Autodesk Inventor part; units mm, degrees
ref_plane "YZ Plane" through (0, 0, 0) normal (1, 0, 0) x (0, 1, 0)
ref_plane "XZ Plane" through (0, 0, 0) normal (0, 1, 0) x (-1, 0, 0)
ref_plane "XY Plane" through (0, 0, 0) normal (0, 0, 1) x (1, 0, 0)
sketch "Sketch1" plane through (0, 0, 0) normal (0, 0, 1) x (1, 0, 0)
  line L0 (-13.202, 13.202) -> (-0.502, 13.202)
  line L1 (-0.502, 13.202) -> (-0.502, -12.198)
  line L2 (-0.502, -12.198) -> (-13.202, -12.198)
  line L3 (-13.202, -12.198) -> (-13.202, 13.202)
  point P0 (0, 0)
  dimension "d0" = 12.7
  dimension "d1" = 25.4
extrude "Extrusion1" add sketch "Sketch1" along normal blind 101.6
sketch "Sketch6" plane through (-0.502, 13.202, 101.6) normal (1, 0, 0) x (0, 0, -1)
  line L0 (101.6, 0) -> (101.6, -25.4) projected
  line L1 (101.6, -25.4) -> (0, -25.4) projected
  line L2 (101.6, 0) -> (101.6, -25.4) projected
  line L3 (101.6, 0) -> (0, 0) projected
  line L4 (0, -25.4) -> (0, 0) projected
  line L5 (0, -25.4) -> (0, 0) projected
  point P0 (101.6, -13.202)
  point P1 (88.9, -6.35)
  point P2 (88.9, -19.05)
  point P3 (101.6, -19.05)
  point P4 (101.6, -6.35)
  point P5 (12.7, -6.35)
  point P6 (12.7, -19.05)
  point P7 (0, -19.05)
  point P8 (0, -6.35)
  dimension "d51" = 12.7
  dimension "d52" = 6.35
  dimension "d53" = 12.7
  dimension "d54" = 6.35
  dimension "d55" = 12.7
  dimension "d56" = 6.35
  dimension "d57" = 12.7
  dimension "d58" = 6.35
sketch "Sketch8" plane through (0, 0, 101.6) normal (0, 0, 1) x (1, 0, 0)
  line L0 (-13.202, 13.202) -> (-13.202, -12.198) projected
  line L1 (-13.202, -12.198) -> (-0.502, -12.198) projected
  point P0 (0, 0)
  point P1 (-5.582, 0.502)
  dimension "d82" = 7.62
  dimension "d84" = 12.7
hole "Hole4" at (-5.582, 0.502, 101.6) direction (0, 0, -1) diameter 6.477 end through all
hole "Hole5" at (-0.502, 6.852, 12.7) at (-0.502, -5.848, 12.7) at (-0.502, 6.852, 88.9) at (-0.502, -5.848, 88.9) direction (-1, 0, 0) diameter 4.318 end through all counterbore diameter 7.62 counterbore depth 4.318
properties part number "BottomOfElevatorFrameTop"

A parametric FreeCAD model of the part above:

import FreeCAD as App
import Part
import Sketcher

V = App.Vector
Q = App.Units.Quantity

doc = App.newDocument("Part")
params = doc.addObject("Spreadsheet::Sheet", "Params")
for row, (alias, value) in enumerate([
    ("sketch1_height", "1 in"),
    ("sketch1_width", "0.5 in"),
    ("pad1_length", "4 in"),
    ("sketch2_diameter", "0.255 in"),
    ("hole_diameter", "0.255 in"),
    ("sketch3_diameter", "0.17 in"),
    ("hole2_diameter", "0.17 in"),
    ("hole2_cbore_diameter", "0.3 in"),
    ("hole2_cbore_depth", "0.17 in"),
], start=1):
    params.set(f"A{row}", alias)
    params.set(f"B{row}", "=" + value)
    params.setAlias(f"B{row}", alias)

body = doc.addObject("PartDesign::Body", "Body")

# Sketch on XY plane
sketch1 = body.newObject("Sketcher::SketchObject", "Sketch")
sketch1.AttachmentSupport = (doc.getObject("XY_Plane"), [""])
sketch1.MapMode = "FlatFace"
sketch1.addGeometry([
    Part.LineSegment(V(-0.502, 13.202, 0), V(-13.202, 13.202, 0)),
    Part.LineSegment(V(-13.202, 13.202, 0), V(-13.202, -12.198, 0)),
    Part.LineSegment(V(-13.202, -12.198, 0), V(-0.502, -12.198, 0)),
    Part.LineSegment(V(-0.502, -12.198, 0), V(-0.502, 13.202, 0)),
], False)
sketch1.addConstraint([
    Sketcher.Constraint("Coincident", 0, 2, 1, 1),
    Sketcher.Constraint("Coincident", 1, 2, 2, 1),
    Sketcher.Constraint("Coincident", 2, 2, 3, 1),
    Sketcher.Constraint("Coincident", 3, 2, 0, 1),
    Sketcher.Constraint("Horizontal", 0),
    Sketcher.Constraint("Vertical", 1),
    Sketcher.Constraint("Horizontal", 2),
    Sketcher.Constraint("Vertical", 3),
    Sketcher.Constraint("DistanceY", 1, 2, 1, 1, Q("1 in")),
    Sketcher.Constraint("DistanceX", 0, 2, 0, 1, Q("0.5 in")),
    Sketcher.Constraint("DistanceX", 0, 2, -1, 1, 13.202),
    Sketcher.Constraint("DistanceY", -1, 1, 0, 2, 13.202),
])
sketch1.setExpression("Constraints[8]", "Params.sketch1_height")
sketch1.setExpression("Constraints[9]", "Params.sketch1_width")
pad1 = body.newObject("PartDesign::Pad", "Pad")
pad1.Profile = sketch1
pad1.setExpression("Length", "Params.pad1_length")

# Sketch on XY plane
sketch2 = body.newObject("Sketcher::SketchObject", "Sketch001")
sketch2.AttachmentSupport = (doc.getObject("XY_Plane"), [""])
sketch2.MapMode = "FlatFace"
sketch2.AttachmentOffset = App.Placement(V(0, 0, 4 * 25.4), App.Rotation())
sketch2.addGeometry(Part.Circle(V(-5.582, 0.502, 0), V(0, 0, 1), 3.2385), False)
sketch2.addConstraint([
    Sketcher.Constraint("Diameter", 0, Q("0.255 in")),
    Sketcher.Constraint("DistanceX", 0, 3, -1, 1, 5.582),
    Sketcher.Constraint("DistanceY", -1, 1, 0, 3, 0.502),
])
sketch2.setExpression("Constraints[0]", "Params.sketch2_diameter")
doc.recompute()
hole = body.newObject("PartDesign::Hole", "Hole")
hole.Profile = sketch2
hole.ThreadType = "None"
hole.setExpression("Diameter", "Params.hole_diameter")
hole.DepthType = "ThroughAll"

# Sketch on YZ plane
sketch3 = body.newObject("Sketcher::SketchObject", "Sketch002")
sketch3.AttachmentSupport = (doc.getObject("YZ_Plane"), [""])
sketch3.MapMode = "FlatFace"
sketch3.AttachmentOffset = App.Placement(V(0, 0, -0.502), App.Rotation())
sketch3.addGeometry([
    Part.Circle(V(6.852, 12.7, 0), V(0, 0, 1), 2.159),
    Part.Circle(V(-5.848, 12.7, 0), V(0, 0, 1), 2.159),
    Part.Circle(V(6.852, 88.9, 0), V(0, 0, 1), 2.159),
    Part.Circle(V(-5.848, 88.9, 0), V(0, 0, 1), 2.159),
], False)
sketch3.addConstraint([
    Sketcher.Constraint("Equal", 0, 1),
    Sketcher.Constraint("Equal", 1, 2),
    Sketcher.Constraint("Equal", 2, 3),
    Sketcher.Constraint("Horizontal", 0, 3, 1, 3),
    Sketcher.Constraint("Horizontal", 2, 3, 3, 3),
    Sketcher.Constraint("Vertical", 0, 3, 2, 3),
    Sketcher.Constraint("Vertical", 1, 3, 3, 3),
    Sketcher.Constraint("Diameter", 0, Q("0.17 in")),
    Sketcher.Constraint("DistanceY", 0, 3, 2, 3, Q("3 in")),
    Sketcher.Constraint("DistanceY", -1, 1, 0, 3, Q("0.5 in")),
    Sketcher.Constraint("DistanceX", 1, 3, 0, 3, Q("0.5 in")),
    Sketcher.Constraint("DistanceX", -1, 1, 0, 3, 6.852),
])
sketch3.setExpression("Constraints[7]", "Params.sketch3_diameter")
doc.recompute()
hole2 = body.newObject("PartDesign::Hole", "Hole001")
hole2.Profile = sketch3
hole2.ThreadType = "None"
hole2.setExpression("Diameter", "Params.hole2_diameter")
hole2.DepthType = "ThroughAll"
hole2.HoleCutType = "Counterbore"
hole2.setExpression("HoleCutDiameter", "Params.hole2_cbore_diameter")
hole2.setExpression("HoleCutDepth", "Params.hole2_cbore_depth")

doc.recompute()
